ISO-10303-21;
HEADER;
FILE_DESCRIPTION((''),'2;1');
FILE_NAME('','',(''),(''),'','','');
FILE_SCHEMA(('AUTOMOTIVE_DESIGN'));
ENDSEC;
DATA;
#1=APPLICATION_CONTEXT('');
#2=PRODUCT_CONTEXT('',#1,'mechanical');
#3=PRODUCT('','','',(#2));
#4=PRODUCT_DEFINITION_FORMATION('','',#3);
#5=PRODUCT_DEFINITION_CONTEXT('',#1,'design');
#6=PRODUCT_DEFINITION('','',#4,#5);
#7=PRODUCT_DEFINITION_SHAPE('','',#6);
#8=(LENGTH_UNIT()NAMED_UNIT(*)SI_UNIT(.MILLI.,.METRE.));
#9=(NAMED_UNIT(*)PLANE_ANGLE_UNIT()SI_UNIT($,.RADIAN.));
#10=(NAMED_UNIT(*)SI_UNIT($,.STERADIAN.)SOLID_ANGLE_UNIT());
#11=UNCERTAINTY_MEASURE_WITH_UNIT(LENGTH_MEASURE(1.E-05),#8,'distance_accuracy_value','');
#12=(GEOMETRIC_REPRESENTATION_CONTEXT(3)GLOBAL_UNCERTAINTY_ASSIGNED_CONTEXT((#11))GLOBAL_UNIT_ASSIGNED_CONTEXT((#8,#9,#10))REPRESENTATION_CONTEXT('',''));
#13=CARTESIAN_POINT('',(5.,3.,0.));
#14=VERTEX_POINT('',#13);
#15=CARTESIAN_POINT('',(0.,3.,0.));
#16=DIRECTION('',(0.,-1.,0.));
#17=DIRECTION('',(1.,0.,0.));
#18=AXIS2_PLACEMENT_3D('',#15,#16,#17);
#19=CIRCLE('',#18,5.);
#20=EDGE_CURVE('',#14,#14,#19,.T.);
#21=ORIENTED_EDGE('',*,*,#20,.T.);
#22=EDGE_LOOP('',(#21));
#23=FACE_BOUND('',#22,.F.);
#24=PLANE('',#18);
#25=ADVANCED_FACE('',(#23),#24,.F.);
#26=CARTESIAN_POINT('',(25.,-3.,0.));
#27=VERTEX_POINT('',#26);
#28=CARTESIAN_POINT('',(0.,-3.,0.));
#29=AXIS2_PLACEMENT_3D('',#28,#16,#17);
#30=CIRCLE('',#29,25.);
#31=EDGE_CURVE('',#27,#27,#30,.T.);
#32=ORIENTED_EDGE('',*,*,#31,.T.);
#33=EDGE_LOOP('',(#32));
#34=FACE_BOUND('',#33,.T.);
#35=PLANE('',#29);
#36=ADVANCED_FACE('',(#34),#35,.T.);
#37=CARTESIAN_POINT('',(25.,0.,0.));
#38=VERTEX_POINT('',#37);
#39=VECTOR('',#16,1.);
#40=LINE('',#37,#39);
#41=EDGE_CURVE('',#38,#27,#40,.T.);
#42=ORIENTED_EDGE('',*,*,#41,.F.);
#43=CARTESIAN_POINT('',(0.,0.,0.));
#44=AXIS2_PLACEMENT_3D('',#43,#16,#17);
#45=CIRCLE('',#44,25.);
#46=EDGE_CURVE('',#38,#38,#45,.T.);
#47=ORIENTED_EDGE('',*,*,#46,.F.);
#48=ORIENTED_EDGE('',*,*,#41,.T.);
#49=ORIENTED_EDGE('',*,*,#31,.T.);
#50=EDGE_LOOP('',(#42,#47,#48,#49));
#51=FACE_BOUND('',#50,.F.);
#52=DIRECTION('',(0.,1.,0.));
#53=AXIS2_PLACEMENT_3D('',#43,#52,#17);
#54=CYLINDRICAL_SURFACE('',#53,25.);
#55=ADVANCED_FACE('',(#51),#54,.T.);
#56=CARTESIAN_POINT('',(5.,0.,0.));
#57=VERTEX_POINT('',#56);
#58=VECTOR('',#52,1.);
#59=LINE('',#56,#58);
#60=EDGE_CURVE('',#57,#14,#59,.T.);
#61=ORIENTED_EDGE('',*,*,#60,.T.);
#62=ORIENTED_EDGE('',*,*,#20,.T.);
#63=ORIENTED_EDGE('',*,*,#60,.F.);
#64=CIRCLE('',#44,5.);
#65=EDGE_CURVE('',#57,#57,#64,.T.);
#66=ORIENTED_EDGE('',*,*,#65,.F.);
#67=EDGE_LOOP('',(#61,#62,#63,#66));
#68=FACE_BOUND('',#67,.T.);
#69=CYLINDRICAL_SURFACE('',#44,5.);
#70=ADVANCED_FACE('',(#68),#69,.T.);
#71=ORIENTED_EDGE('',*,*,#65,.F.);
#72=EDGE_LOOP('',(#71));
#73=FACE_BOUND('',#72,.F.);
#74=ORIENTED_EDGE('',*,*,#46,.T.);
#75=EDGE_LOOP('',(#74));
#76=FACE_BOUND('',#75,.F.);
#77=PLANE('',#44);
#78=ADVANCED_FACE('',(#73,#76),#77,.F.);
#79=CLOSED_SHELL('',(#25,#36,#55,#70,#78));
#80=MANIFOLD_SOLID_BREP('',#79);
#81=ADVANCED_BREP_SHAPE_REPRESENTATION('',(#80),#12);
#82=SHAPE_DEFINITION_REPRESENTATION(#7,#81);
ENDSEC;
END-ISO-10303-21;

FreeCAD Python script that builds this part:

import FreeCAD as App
import Part
import Sketcher

V = App.Vector

doc = App.newDocument("Part")
body = doc.addObject("PartDesign::Body", "Body")

# Sketch on XZ plane
sketch1 = body.newObject("Sketcher::SketchObject", "Sketch")
sketch1.AttachmentSupport = (doc.getObject("XZ_Plane"), [""])
sketch1.MapMode = "FlatFace"
sketch1.addGeometry(Part.Circle(V(0, 0, 0), V(0, 0, 1), 25), False)
sketch1.addConstraint([
    Sketcher.Constraint("Coincident", 0, 3, -1, 1),
    Sketcher.Constraint("Diameter", 0, 50.0),
])
pad1 = body.newObject("PartDesign::Pad", "Pad")
pad1.Profile = sketch1
pad1.Length = 3

# Sketch on XZ plane
sketch2 = body.newObject("Sketcher::SketchObject", "Sketch001")
sketch2.AttachmentSupport = (doc.getObject("XZ_Plane"), [""])
sketch2.MapMode = "FlatFace"
sketch2.addGeometry(Part.Circle(V(0, 0, 0), V(0, 0, 1), 5), False)
sketch2.addConstraint([
    Sketcher.Constraint("Coincident", 0, 3, -1, 1),
    Sketcher.Constraint("Diameter", 0, 10.0),
])
pad2 = body.newObject("PartDesign::Pad", "Pad001")
pad2.Profile = sketch2
pad2.Length = 3
pad2.Reversed = True

doc.recompute()
